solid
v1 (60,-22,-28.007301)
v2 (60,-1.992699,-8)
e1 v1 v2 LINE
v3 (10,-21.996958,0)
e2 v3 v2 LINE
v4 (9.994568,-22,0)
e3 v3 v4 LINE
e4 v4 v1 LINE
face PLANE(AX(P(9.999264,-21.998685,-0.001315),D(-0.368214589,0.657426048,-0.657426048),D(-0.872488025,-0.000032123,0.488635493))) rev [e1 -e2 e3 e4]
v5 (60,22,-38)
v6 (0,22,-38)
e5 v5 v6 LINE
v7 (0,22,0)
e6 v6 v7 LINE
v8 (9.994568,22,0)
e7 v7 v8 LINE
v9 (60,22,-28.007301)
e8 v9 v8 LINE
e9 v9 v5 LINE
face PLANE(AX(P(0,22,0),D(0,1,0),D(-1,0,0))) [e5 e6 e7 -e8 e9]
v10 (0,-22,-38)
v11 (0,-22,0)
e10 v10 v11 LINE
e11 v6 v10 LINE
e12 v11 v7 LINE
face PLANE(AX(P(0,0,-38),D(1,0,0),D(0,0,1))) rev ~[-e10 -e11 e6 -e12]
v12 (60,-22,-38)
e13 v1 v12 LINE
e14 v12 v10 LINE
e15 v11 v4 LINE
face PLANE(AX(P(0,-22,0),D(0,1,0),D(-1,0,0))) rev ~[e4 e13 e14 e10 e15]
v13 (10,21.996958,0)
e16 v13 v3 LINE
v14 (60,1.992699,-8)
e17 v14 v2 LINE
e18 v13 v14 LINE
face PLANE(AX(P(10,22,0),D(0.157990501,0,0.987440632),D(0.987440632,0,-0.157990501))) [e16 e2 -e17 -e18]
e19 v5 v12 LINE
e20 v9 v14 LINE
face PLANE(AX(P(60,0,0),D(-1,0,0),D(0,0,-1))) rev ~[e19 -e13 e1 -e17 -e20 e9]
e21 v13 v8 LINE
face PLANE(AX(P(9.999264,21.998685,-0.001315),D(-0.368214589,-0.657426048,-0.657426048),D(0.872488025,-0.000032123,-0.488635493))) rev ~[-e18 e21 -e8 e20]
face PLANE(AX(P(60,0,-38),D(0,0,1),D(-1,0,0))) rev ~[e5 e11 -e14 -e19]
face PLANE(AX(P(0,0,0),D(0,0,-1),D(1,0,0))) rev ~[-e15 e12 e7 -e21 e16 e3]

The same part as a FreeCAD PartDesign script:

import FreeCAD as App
import Part
import Sketcher

doc = App.newDocument("Part")
body = doc.addObject("PartDesign::Body", "Body")

# Sketch on XZ plane
sketch1 = body.newObject("Sketcher::SketchObject", "Sketch")
sketch1.AttachmentSupport = (doc.getObject("XZ_Plane"), [""])
sketch1.MapMode = "FlatFace"
sketch1.addGeometry(Part.LineSegment(App.Vector(0, -38, 0), App.Vector(0, 0, 0)), False)
sketch1.addGeometry(Part.LineSegment(App.Vector(0, 0, 0), App.Vector(60, 0, 0)), False)
sketch1.addGeometry(Part.LineSegment(App.Vector(60, 0, 0), App.Vector(60, -38, 0)), False)
sketch1.addGeometry(Part.LineSegment(App.Vector(60, -38, 0), App.Vector(0, -38, 0)), False)
sketch1.addConstraint(Sketcher.Constraint("Coincident", 0, 2, 1, 1))
sketch1.addConstraint(Sketcher.Constraint("Coincident", 1, 2, 2, 1))
sketch1.addConstraint(Sketcher.Constraint("Coincident", 2, 2, 3, 1))
sketch1.addConstraint(Sketcher.Constraint("Coincident", 3, 2, 0, 1))
sketch1.addConstraint(Sketcher.Constraint("Vertical", 0))
sketch1.addConstraint(Sketcher.Constraint("Horizontal", 1))
sketch1.addConstraint(Sketcher.Constraint("Vertical", 2))
sketch1.addConstraint(Sketcher.Constraint("Horizontal", 3))
sketch1.addConstraint(Sketcher.Constraint("Coincident", 0, 2, -1, 1))
sketch1.addConstraint(Sketcher.Constraint("DistanceX", 1, 1, 1, 2, 60.0))
sketch1.addConstraint(Sketcher.Constraint("DistanceY", 0, 1, 0, 2, 38.0))
pad1 = body.newObject("PartDesign::Pad", "Pad")
pad1.Profile = sketch1
pad1.Length = 44
pad1.Midplane = True

# Sketch on XZ plane
sketch2 = body.newObject("Sketcher::SketchObject", "Sketch001")
sketch2.AttachmentSupport = (doc.getObject("XZ_Plane"), [""])
sketch2.MapMode = "FlatFace"
sketch2.AttachmentOffset = App.Placement(App.Vector(0, 0, -22), App.Rotation())
sketch2.addGeometry(Part.LineSegment(App.Vector(60, -8, 0), App.Vector(10, 0, 0)), False)
sketch2.addGeometry(Part.LineSegment(App.Vector(10, 0, 0), App.Vector(60, 0, 0)), False)
sketch2.addGeometry(Part.LineSegment(App.Vector(60, 0, 0), App.Vector(60, -8, 0)), False)
sketch2.addConstraint(Sketcher.Constraint("Coincident", 0, 2, 1, 1))
sketch2.addConstraint(Sketcher.Constraint("Coincident", 1, 2, 2, 1))
sketch2.addConstraint(Sketcher.Constraint("Coincident", 2, 2, 0, 1))
sketch2.addConstraint(Sketcher.Constraint("Horizontal", 1))
sketch2.addConstraint(Sketcher.Constraint("Vertical", 2))
sketch2.addConstraint(Sketcher.Constraint("PointOnObject", 0, 2, -1))
sketch2.addConstraint(Sketcher.Constraint("DistanceX", -1, 1, 0, 2, 10.0))
sketch2.addConstraint(Sketcher.Constraint("DistanceX", 1, 1, 1, 2, 50.0))
sketch2.addConstraint(Sketcher.Constraint("DistanceY", 2, 2, 2, 1, 8.0))
pocket1 = body.newObject("PartDesign::Pocket", "Pocket")
pocket1.Profile = sketch2
pocket1.Length = 60
pocket1.Reversed = True

# Sketch on an angled plane
sketch3 = body.newObject("Sketcher::SketchObject", "Sketch002")
sketch3.Placement = App.Placement(App.Vector(10, 22, 0), App.Rotation(App.Vector(0.872488025, -0.000032123, -0.488635493), App.Vector(0.321220583, -0.753519071, 0.573608182), App.Vector(-0.368214589, -0.657426048, -0.657426048), "ZXY"))
sketch3.addGeometry(Part.LineSegment(App.Vector(-15, 29, 0), App.Vector(-15, -12, 0)), False)
sketch3.addGeometry(Part.LineSegment(App.Vector(-15, -12, 0), App.Vector(94, -12, 0)), False)
sketch3.addGeometry(Part.LineSegment(App.Vector(94, -12, 0), App.Vector(94, 29, 0)), False)
sketch3.addGeometry(Part.LineSegment(App.Vector(94, 29, 0), App.Vector(-15, 29, 0)), False)
sketch3.addConstraint(Sketcher.Constraint("Coincident", 0, 2, 1, 1))
sketch3.addConstraint(Sketcher.Constraint("Coincident", 1, 2, 2, 1))
sketch3.addConstraint(Sketcher.Constraint("Coincident", 2, 2, 3, 1))
sketch3.addConstraint(Sketcher.Constraint("Coincident", 3, 2, 0, 1))
sketch3.addConstraint(Sketcher.Constraint("Vertical", 0))
sketch3.addConstraint(Sketcher.Constraint("Horizontal", 1))
sketch3.addConstraint(Sketcher.Constraint("Vertical", 2))
sketch3.addConstraint(Sketcher.Constraint("Horizontal", 3))
sketch3.addConstraint(Sketcher.Constraint("DistanceX", 1, 1, 1, 2, 108.8713))
sketch3.addConstraint(Sketcher.Constraint("DistanceY", 0, 2, 0, 1, 41.1384))
sketch3.addConstraint(Sketcher.Constraint("DistanceX", -1, 1, 1, 2, 93.717))
sketch3.addConstraint(Sketcher.Constraint("DistanceY", 0, 2, -1, 1, 12.3218))
pocket2 = body.newObject("PartDesign::Pocket", "Pocket001")
pocket2.Profile = sketch3
pocket2.Length = 40
doc.recompute()

mirrored = body.newObject("PartDesign::Mirrored", "Mirrored")
mirrored.Originals = [pocket2]
mirrored.MirrorPlane = (doc.getObject("XZ_Plane"), [""])
body.Tip = mirrored

doc.recompute()
